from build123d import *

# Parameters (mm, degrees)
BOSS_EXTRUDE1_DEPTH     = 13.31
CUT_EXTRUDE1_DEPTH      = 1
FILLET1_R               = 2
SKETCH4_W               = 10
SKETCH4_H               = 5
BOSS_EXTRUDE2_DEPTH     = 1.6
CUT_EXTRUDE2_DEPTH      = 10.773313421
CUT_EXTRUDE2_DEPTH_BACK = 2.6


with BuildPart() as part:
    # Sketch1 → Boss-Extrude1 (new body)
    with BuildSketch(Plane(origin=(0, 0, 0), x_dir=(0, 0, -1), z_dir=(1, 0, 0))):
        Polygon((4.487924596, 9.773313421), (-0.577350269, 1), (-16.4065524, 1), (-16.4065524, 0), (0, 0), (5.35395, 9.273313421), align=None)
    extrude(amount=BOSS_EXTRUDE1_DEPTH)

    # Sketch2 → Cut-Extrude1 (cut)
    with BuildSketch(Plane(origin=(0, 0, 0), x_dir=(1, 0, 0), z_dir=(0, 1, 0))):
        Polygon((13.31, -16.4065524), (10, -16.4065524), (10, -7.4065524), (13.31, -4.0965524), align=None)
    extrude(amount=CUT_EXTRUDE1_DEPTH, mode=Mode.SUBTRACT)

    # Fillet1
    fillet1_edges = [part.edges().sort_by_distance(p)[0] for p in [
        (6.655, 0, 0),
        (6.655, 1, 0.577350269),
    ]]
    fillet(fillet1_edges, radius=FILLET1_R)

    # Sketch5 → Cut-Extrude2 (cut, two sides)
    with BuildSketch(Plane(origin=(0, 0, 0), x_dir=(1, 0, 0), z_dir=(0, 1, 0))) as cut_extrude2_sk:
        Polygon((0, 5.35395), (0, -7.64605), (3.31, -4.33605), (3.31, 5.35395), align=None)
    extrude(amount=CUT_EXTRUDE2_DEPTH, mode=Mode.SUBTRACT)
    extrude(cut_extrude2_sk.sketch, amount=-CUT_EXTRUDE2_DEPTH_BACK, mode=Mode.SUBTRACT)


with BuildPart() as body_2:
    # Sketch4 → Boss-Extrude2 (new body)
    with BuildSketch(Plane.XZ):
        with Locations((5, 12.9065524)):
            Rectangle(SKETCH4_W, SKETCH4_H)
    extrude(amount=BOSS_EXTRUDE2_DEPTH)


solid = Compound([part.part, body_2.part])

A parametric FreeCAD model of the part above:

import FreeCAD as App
import Part
import Sketcher

V = App.Vector
Q = App.Units.Quantity


def edges_at(feature, points):
    """Names of the edges that pass closest to the given points."""
    edges = feature.Shape.Edges
    near = lambda p: min(range(len(edges)), key=lambda i: edges[i].distToShape(Part.Vertex(*p))[0])
    return sorted({f"Edge{near(p) + 1}" for p in points})

doc = App.newDocument("Part")
body = doc.addObject("PartDesign::Body", "Body")

# Sketch on YZ plane
sketch1 = body.newObject("Sketcher::SketchObject", "Sketch")
sketch1.AttachmentSupport = (doc.getObject("YZ_Plane"), [""])
sketch1.MapMode = "FlatFace"
sketch1.addGeometry([
    Part.LineSegment(V(9.8, -4.5, 0), V(1, 0.6, 0)),  # 0
    Part.LineSegment(V(1, 0.6, 0), V(1, 16.4, 0)),  # 1
    Part.LineSegment(V(1, 16.4, 0), V(0, 16.4, 0)),  # 2
    Part.LineSegment(V(0, 16.4, 0), V(0, 0, 0)),  # 3
    Part.LineSegment(V(0, 0, 0), V(9.3, -5.4, 0)),  # 4
    Part.LineSegment(V(9.3, -5.4, 0), V(9.8, -4.5, 0)),  # 5
], False)
sketch1.addConstraint([
    Sketcher.Constraint("Coincident", 0, 2, 1, 1),
    Sketcher.Constraint("Coincident", 1, 2, 2, 1),
    Sketcher.Constraint("Coincident", 2, 2, 3, 1),
    Sketcher.Constraint("Coincident", 3, 2, 4, 1),
    Sketcher.Constraint("Coincident", 4, 2, 5, 1),
    Sketcher.Constraint("Coincident", 5, 2, 0, 1),
    Sketcher.Constraint("Vertical", 1),
    Sketcher.Constraint("Horizontal", 2),
    Sketcher.Constraint("Vertical", 3),
    Sketcher.Constraint("Coincident", 3, 2, -1, 1),
    Sketcher.Constraint("Parallel", 0, 4),
    Sketcher.Constraint("Perpendicular", 4, 5),
    Sketcher.Constraint("DistanceX", 2, 2, 2, 1, 1.0),
    Sketcher.Constraint("Angle", 0, Q("150 deg")),
    Sketcher.Constraint("Distance", 5, 1.0),
    Sketcher.Constraint("Distance", 4, 10.7079),
    Sketcher.Constraint("DistanceY", 1, 1, 1, 2, 15.829202),
])
pad1 = body.newObject("PartDesign::Pad", "Pad")
pad1.Profile = sketch1
pad1.Length = 13.31

# Sketch on XZ plane
sketch2 = body.newObject("Sketcher::SketchObject", "Sketch001")
sketch2.AttachmentSupport = (doc.getObject("XZ_Plane"), [""])
sketch2.MapMode = "FlatFace"
sketch2.addGeometry([
    Part.LineSegment(V(10, 16.4, 0), V(13.3, 16.4, 0)),
    Part.LineSegment(V(13.3, 16.4, 0), V(13.3, 4.1, 0)),
    Part.LineSegment(V(13.3, 4.1, 0), V(10, 7.4, 0)),
    Part.LineSegment(V(10, 7.4, 0), V(10, 16.4, 0)),
], False)
sketch2.addConstraint([
    Sketcher.Constraint("Coincident", 0, 2, 1, 1),
    Sketcher.Constraint("Coincident", 1, 2, 2, 1),
    Sketcher.Constraint("Coincident", 2, 2, 3, 1),
    Sketcher.Constraint("Coincident", 3, 2, 0, 1),
    Sketcher.Constraint("Horizontal", 0),
    Sketcher.Constraint("Vertical", 1),
    Sketcher.Constraint("Vertical", 3),
    Sketcher.Constraint("DistanceY", 3, 1, 3, 2, 9.0),
    Sketcher.Constraint("Angle", 2, Q("135 deg")),
    Sketcher.Constraint("DistanceX", -1, 1, 2, 2, 10.0),
    Sketcher.Constraint("DistanceX", 0, 1, 0, 2, 3.31),
    Sketcher.Constraint("DistanceY", -1, 1, 0, 2, 16.406552),
])
pocket1 = body.newObject("PartDesign::Pocket", "Pocket")
pocket1.Profile = sketch2
pocket1.Length = 1
doc.recompute()

fillet = body.newObject("PartDesign::Fillet", "Fillet")
fillet.Base = (pocket1, edges_at(pocket1, [(6.655, 0, 0), (6.655, 1, 0.577)]))
fillet.Radius = 2

# Sketch on XZ plane
sketch3 = body.newObject("Sketcher::SketchObject", "Sketch002")
sketch3.AttachmentSupport = (doc.getObject("XZ_Plane"), [""])
sketch3.MapMode = "FlatFace"
sketch3.addGeometry([
    Part.LineSegment(V(0, -5.4, 0), V(0, 7.6, 0)),
    Part.LineSegment(V(0, 7.6, 0), V(3.3, 4.3, 0)),
    Part.LineSegment(V(3.3, 4.3, 0), V(3.3, -5.4, 0)),
    Part.LineSegment(V(3.3, -5.4, 0), V(0, -5.4, 0)),
], False)
sketch3.addConstraint([
    Sketcher.Constraint("Coincident", 0, 2, 1, 1),
    Sketcher.Constraint("Coincident", 1, 2, 2, 1),
    Sketcher.Constraint("Coincident", 2, 2, 3, 1),
    Sketcher.Constraint("Coincident", 3, 2, 0, 1),
    Sketcher.Constraint("Vertical", 0),
    Sketcher.Constraint("Vertical", 2),
    Sketcher.Constraint("Horizontal", 3),
    Sketcher.Constraint("PointOnObject", 0, 2, -2),
    Sketcher.Constraint("DistanceY", 0, 1, 0, 2, 13.0),
    Sketcher.Constraint("Angle", 1, Q("-45 deg")),
    Sketcher.Constraint("DistanceX", 3, 2, 3, 1, 3.31),
    Sketcher.Constraint("DistanceY", -1, 1, 0, 2, 7.64605),
])
pocket2 = body.newObject("PartDesign::Pocket", "Pocket001")
pocket2.Profile = sketch3
pocket2.Type = "ThroughAll"
pocket2.Midplane = True
body2 = doc.addObject("PartDesign::Body", "Body001")

# Sketch on XZ plane
sketch4 = body2.newObject("Sketcher::SketchObject", "Sketch003")
sketch4.AttachmentSupport = (doc.getObject("XZ_Plane001"), [""])
sketch4.MapMode = "FlatFace"
sketch4.addGeometry([
    Part.LineSegment(V(0, 15, 0), V(0, 10, 0)),
    Part.LineSegment(V(0, 10, 0), V(10, 10, 0)),
    Part.LineSegment(V(10, 10, 0), V(10, 15, 0)),
    Part.LineSegment(V(10, 15, 0), V(0, 15, 0)),
], False)
sketch4.addConstraint([
    Sketcher.Constraint("Coincident", 0, 2, 1, 1),
    Sketcher.Constraint("Coincident", 1, 2, 2, 1),
    Sketcher.Constraint("Coincident", 2, 2, 3, 1),
    Sketcher.Constraint("Coincident", 3, 2, 0, 1),
    Sketcher.Constraint("Vertical", 0),
    Sketcher.Constraint("Horizontal", 1),
    Sketcher.Constraint("Vertical", 2),
    Sketcher.Constraint("Horizontal", 3),
    Sketcher.Constraint("PointOnObject", 0, 2, -2),
    Sketcher.Constraint("DistanceX", 1, 1, 1, 2, 10.0),
    Sketcher.Constraint("DistanceY", 0, 2, 0, 1, 5.0),
    Sketcher.Constraint("DistanceY", -1, 1, 0, 2, 10.406552),
])
pad2 = body2.newObject("PartDesign::Pad", "Pad001")
pad2.Profile = sketch4
pad2.Length = 1.6

doc.recompute()
